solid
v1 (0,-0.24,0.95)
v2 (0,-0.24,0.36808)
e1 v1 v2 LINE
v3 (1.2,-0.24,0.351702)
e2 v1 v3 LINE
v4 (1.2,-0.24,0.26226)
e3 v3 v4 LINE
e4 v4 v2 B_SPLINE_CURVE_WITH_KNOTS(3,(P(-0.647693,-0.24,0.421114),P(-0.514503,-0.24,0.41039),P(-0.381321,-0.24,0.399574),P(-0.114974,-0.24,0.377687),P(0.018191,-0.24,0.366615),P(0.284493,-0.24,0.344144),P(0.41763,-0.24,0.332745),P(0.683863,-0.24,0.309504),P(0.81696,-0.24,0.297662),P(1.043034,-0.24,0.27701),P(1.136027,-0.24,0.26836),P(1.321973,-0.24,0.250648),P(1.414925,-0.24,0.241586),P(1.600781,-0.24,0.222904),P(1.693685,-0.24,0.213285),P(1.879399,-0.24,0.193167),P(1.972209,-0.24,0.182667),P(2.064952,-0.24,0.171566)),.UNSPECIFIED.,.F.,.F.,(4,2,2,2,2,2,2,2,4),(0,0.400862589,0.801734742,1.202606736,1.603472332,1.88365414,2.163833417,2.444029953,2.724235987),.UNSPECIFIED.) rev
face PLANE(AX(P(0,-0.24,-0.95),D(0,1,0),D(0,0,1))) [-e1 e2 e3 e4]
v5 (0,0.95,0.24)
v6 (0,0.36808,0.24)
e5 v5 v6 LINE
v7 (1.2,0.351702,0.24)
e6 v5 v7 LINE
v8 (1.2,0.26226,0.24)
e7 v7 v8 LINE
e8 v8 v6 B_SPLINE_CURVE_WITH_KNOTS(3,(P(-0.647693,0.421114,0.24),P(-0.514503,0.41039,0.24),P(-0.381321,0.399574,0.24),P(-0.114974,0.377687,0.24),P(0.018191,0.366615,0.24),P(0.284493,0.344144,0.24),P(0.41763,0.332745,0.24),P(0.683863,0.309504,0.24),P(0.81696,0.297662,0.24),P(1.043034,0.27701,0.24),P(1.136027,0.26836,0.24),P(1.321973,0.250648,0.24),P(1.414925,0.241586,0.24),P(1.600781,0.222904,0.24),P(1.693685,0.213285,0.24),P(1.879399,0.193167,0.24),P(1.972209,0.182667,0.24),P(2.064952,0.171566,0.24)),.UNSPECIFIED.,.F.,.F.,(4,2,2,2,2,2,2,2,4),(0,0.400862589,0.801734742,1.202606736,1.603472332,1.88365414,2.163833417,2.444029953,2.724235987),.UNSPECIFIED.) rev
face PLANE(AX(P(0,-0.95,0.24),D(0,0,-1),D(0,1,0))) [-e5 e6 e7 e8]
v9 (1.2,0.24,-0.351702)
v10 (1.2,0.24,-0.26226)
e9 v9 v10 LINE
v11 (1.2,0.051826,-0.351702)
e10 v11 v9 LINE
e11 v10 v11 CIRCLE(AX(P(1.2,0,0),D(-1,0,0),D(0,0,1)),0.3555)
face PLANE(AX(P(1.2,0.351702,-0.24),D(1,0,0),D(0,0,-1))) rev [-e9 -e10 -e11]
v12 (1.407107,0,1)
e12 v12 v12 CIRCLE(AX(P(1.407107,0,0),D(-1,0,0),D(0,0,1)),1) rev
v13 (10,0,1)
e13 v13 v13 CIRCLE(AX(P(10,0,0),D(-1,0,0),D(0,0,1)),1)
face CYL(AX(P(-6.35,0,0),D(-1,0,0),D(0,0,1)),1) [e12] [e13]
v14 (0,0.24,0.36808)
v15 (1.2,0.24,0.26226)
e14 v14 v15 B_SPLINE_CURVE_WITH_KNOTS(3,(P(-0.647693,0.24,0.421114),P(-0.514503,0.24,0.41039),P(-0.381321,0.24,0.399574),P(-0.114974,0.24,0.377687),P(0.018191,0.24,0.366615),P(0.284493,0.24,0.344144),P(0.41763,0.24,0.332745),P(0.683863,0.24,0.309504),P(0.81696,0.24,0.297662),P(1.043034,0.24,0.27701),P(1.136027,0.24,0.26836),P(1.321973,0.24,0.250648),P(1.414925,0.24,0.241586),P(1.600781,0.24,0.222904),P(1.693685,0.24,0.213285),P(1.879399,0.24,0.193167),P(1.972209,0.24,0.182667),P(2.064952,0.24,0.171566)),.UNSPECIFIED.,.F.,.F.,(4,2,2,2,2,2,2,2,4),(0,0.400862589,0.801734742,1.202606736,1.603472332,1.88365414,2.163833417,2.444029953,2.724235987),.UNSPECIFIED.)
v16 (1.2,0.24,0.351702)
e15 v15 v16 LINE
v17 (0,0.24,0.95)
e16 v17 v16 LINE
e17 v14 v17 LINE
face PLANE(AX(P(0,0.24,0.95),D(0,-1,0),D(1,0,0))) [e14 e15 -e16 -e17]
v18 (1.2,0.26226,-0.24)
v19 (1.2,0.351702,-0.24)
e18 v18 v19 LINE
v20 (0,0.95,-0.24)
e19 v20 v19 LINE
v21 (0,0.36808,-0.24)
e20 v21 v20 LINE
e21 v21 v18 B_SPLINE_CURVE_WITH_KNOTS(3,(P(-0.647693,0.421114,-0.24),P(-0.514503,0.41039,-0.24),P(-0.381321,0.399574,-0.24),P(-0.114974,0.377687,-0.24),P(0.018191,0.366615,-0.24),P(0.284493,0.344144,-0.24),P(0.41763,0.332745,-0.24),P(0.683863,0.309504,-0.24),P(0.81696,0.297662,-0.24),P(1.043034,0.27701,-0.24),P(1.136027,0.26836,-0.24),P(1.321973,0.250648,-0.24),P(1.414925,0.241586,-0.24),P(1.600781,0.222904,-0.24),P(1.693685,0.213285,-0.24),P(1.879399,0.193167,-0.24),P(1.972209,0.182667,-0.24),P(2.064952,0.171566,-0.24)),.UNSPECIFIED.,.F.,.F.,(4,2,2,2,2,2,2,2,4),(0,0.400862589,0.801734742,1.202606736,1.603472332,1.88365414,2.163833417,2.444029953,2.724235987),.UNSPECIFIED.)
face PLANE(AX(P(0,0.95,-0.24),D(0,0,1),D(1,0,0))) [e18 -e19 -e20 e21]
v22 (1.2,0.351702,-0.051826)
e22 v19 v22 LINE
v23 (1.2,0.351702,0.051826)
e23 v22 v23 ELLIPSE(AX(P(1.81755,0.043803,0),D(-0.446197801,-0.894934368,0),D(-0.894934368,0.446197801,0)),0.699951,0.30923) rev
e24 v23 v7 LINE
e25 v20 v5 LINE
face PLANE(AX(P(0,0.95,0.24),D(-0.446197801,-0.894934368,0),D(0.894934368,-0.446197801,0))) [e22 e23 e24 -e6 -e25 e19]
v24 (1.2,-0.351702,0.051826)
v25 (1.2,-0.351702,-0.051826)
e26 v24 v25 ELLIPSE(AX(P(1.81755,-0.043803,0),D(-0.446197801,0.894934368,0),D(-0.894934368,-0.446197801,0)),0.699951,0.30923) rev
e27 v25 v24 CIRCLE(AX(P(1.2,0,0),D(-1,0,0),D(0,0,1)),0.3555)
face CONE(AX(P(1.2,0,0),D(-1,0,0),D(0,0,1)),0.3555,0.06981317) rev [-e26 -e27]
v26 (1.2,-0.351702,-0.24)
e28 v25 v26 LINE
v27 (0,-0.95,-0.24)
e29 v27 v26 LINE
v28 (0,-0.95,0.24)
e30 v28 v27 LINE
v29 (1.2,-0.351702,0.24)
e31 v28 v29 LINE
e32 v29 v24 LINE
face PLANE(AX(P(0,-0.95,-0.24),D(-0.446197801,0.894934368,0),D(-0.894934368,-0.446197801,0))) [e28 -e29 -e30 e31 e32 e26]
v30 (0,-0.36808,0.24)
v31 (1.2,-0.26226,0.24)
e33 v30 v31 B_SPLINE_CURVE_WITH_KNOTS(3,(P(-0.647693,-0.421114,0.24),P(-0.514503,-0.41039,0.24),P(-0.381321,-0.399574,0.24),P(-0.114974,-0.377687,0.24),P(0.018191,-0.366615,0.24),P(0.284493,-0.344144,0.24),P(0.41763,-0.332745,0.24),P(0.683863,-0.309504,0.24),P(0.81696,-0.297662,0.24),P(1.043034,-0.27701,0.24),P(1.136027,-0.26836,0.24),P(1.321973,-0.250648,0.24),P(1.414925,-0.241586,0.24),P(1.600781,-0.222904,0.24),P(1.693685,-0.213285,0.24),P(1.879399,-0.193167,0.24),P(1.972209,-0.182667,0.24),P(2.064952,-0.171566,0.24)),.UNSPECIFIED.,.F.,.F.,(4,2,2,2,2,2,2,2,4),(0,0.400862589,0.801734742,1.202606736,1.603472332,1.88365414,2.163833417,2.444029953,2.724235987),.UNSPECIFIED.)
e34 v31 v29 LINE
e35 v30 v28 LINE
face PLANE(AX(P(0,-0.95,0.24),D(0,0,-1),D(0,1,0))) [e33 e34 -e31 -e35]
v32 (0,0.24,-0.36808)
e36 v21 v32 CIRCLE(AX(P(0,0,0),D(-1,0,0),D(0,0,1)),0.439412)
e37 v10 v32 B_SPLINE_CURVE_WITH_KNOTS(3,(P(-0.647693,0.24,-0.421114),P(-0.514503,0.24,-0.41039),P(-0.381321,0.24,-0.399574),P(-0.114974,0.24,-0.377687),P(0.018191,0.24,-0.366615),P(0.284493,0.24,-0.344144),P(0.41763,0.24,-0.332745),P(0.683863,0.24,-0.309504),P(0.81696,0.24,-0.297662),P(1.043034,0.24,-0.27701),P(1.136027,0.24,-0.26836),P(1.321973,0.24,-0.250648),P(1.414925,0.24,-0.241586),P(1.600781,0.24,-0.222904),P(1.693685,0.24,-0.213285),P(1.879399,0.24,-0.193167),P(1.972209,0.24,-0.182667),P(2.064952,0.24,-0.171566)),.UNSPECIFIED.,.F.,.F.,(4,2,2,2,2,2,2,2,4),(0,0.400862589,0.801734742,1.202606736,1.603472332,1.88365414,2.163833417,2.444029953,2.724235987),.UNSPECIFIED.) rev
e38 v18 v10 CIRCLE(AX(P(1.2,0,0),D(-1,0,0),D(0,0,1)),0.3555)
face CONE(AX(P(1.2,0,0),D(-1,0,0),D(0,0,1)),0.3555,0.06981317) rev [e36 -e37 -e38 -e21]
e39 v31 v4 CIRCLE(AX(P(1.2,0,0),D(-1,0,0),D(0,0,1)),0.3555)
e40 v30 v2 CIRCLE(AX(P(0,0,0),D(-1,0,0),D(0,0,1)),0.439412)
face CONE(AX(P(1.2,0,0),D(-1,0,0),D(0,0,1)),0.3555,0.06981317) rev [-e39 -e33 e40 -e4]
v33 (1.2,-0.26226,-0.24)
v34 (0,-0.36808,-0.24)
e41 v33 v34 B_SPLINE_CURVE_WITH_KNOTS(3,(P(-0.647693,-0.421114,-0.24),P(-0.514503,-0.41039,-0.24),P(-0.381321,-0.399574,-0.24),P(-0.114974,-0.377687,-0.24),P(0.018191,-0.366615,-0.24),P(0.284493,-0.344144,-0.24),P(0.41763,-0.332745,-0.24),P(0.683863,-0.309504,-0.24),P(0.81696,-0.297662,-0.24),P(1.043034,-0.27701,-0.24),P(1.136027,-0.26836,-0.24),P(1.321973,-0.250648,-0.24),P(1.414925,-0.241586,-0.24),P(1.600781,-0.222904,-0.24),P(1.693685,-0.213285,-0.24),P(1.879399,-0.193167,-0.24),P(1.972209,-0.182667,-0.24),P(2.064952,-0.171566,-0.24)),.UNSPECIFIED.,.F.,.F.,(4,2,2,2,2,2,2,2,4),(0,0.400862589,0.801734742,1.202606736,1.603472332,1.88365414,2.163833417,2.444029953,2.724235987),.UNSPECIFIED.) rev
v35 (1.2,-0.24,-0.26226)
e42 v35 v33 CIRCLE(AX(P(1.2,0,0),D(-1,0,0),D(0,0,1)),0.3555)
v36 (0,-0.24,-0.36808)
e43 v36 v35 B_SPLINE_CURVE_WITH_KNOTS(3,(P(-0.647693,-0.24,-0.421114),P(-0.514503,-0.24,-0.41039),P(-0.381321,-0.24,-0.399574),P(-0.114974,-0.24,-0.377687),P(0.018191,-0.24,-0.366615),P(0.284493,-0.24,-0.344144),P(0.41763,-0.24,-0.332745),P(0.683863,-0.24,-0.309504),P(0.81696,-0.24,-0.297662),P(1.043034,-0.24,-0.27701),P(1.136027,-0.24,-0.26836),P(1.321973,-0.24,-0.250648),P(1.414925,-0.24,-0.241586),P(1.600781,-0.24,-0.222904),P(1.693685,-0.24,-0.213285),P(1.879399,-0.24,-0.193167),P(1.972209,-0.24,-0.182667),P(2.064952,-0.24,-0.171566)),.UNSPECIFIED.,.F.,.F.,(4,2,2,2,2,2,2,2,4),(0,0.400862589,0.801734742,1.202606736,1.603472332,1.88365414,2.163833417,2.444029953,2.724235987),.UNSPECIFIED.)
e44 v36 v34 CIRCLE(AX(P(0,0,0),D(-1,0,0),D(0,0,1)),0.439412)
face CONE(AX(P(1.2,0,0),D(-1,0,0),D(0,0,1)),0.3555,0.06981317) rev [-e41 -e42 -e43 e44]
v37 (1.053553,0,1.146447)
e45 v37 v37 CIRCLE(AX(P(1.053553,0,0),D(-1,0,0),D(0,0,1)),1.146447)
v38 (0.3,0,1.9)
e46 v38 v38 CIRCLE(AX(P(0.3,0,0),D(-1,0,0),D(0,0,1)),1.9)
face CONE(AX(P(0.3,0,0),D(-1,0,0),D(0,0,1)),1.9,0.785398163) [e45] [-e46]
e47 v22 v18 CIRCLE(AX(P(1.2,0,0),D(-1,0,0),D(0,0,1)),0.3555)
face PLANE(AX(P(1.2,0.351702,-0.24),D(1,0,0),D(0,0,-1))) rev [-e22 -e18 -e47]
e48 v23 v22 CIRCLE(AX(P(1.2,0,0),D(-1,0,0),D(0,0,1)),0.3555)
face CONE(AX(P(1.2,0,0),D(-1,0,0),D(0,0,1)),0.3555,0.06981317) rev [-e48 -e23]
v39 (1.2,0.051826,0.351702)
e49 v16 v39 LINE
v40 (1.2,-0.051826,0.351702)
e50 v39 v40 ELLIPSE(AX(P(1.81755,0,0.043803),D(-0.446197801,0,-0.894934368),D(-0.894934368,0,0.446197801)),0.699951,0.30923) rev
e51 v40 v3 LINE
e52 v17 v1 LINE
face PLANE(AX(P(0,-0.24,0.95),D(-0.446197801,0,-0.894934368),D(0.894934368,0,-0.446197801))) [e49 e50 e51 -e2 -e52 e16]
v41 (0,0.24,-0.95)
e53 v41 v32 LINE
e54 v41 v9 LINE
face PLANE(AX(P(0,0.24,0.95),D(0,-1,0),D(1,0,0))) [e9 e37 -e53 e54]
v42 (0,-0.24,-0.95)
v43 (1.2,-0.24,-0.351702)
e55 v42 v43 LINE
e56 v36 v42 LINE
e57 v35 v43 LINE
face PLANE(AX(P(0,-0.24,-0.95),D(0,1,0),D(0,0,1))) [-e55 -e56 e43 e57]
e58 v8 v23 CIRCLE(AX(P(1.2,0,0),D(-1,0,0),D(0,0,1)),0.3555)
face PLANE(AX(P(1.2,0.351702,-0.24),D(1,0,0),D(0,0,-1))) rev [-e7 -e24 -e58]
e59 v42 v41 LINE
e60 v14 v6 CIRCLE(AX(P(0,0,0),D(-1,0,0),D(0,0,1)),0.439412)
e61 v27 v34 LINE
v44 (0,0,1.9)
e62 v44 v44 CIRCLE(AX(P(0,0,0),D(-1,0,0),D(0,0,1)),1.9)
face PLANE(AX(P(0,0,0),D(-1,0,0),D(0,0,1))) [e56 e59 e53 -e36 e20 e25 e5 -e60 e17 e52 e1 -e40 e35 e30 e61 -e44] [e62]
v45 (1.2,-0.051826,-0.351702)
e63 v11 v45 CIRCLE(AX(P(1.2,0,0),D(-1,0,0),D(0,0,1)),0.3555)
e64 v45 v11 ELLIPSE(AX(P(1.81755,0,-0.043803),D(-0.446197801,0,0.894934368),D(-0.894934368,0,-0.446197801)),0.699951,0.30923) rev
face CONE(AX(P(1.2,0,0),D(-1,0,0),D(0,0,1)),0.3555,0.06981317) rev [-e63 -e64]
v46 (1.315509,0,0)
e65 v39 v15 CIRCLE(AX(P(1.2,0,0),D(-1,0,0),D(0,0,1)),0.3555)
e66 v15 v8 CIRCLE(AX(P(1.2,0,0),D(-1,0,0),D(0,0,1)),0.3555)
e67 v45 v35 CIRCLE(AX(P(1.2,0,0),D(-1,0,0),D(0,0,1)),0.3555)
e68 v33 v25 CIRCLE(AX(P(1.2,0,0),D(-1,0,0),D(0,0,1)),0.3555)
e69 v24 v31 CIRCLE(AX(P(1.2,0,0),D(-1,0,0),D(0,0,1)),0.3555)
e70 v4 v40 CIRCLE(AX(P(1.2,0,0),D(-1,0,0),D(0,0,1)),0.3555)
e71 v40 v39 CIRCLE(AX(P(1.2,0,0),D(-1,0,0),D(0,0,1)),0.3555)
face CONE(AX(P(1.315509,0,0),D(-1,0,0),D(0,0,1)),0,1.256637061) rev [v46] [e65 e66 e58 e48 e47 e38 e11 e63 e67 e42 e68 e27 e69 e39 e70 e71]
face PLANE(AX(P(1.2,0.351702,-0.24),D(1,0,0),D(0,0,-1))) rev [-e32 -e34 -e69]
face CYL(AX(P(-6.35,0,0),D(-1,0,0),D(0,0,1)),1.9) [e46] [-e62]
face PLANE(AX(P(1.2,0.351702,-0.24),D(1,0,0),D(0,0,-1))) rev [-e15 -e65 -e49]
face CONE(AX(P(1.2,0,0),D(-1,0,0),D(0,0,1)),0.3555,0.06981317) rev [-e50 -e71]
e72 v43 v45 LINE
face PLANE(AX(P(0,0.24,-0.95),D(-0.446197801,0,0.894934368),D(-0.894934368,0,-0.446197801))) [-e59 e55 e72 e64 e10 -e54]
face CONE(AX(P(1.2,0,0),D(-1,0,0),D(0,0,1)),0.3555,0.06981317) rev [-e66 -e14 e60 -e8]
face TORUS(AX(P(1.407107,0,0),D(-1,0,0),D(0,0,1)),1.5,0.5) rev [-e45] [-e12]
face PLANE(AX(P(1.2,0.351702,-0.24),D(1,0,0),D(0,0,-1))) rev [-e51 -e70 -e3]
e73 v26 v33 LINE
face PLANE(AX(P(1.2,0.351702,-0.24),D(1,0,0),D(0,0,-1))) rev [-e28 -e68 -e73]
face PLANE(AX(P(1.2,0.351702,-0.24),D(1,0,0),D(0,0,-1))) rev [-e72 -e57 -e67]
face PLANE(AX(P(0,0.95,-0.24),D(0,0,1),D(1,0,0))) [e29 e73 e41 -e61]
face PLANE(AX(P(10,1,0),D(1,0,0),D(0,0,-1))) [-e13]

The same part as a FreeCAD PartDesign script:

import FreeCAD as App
import Part
import Sketcher
Q = App.Units.Quantity


def edges_at(feature, points):
    """Names of the edges that pass closest to the given points."""
    edges = feature.Shape.Edges
    near = lambda p: min(range(len(edges)), key=lambda i: edges[i].distToShape(Part.Vertex(*p))[0])
    return sorted({f"Edge{near(p) + 1}" for p in points})


def add_polygon(sketch, points):
    """Adds a closed chain of lines whose ends are joined by coincident constraints."""
    first, n = sketch.GeometryCount, len(points)
    for a, b in zip(points, points[1:] + points[:1]):
        sketch.addGeometry(Part.LineSegment(App.Vector(*a, 0), App.Vector(*b, 0)), False)
    for i in range(n):
        sketch.addConstraint(Sketcher.Constraint("Coincident", first + i, 2, first + (i + 1) % n, 1))

doc = App.newDocument("Part")
body = doc.addObject("PartDesign::Body", "Body")

# Sketch on XY plane
sketch1 = body.newObject("Sketcher::SketchObject", "Sketch")
sketch1.AttachmentSupport = (doc.getObject("XY_Plane"), [""])
sketch1.MapMode = "FlatFace"
add_polygon(sketch1, [(0, 1.9), (0, 0), (10, 0), (10, 1), (1.2, 1), (0.3, 1.9)])  # lines 0-5
sketch1.addConstraint([
    Sketcher.Constraint("Vertical", 0),
    Sketcher.Constraint("Horizontal", 1),
    Sketcher.Constraint("Vertical", 2),
    Sketcher.Constraint("Horizontal", 3),
    Sketcher.Constraint("Horizontal", 5),
    Sketcher.Constraint("Coincident", 0, 2, -1, 1),
    Sketcher.Constraint("DistanceX", 1, 1, 1, 2, Q("10 mm")),
    Sketcher.Constraint("DistanceY", 2, 1, 2, 2, Q("1 mm")),
    Sketcher.Constraint("Angle", 4, Q("135 deg")),
    Sketcher.Constraint("DistanceX", 3, 2, 3, 1, Q("8.8 mm")),
    Sketcher.Constraint("DistanceX", 5, 2, 5, 1, Q("0.3 mm")),
])
revolution = body.newObject("PartDesign::Revolution", "Revolution")
revolution.Profile = sketch1
revolution.ReferenceAxis = (sketch1, ["H_Axis"])
revolution.Angle = 360
doc.recompute()

fillet = body.newObject("PartDesign::Fillet", "Fillet")
fillet.Base = (revolution, edges_at(revolution, [(1.2, 0, -1)]))
fillet.Radius = 0.5

# Sketch on YZ plane
sketch2 = body.newObject("Sketcher::SketchObject", "Sketch001")
sketch2.AttachmentSupport = (doc.getObject("YZ_Plane"), [""])
sketch2.MapMode = "FlatFace"
add_polygon(sketch2, [(0.95, 0.24), (0.95, -0.24), (-0.95, -0.24), (-0.95, 0.24)])  # lines 0-3
sketch2.addConstraint([
    Sketcher.Constraint("Vertical", 0),
    Sketcher.Constraint("Horizontal", 1),
    Sketcher.Constraint("Vertical", 2),
    Sketcher.Constraint("Horizontal", 3),
    Sketcher.Constraint("Symmetric", 0, 2, 2, 2, -1, 1),
    Sketcher.Constraint("DistanceX", 1, 2, 1, 1, Q("1.9 mm")),
    Sketcher.Constraint("DistanceY", 0, 2, 0, 1, Q("0.48 mm")),
])

# Sketch on YZ plane
sketch3 = body.newObject("Sketcher::SketchObject", "Sketch002")
sketch3.AttachmentSupport = (doc.getObject("YZ_Plane"), [""])
sketch3.MapMode = "FlatFace"
sketch3.AttachmentOffset = App.Placement(App.Vector(0, 0, 1.2), App.Rotation())
add_polygon(sketch3, [(0.35, 0.24), (0.35, -0.24), (-0.35, -0.24), (-0.35, 0.24)])  # lines 0-3
sketch3.addConstraint([
    Sketcher.Constraint("Vertical", 0),
    Sketcher.Constraint("Horizontal", 1),
    Sketcher.Constraint("Vertical", 2),
    Sketcher.Constraint("Horizontal", 3),
    Sketcher.Constraint("Symmetric", 0, 2, 2, 2, -1, 1),
    Sketcher.Constraint("DistanceY", 0, 2, 0, 1, Q("0.48 mm")),
    Sketcher.Constraint("DistanceX", 1, 2, 1, 1, Q("0.703404 mm")),
])

subtractiveloft = body.newObject("PartDesign::SubtractiveLoft", "SubtractiveLoft")
subtractiveloft.Profile = sketch2
subtractiveloft.Sections = [sketch3]
doc.recompute()

polarpattern = body.newObject("PartDesign::PolarPattern", "PolarPattern")
polarpattern.Originals = [subtractiveloft]
polarpattern.Axis = (doc.getObject("X_Axis"), [""])
polarpattern.Angle = 90
polarpattern.Occurrences = 2
body.Tip = polarpattern

# Sketch on XY plane
sketch4 = body.newObject("Sketcher::SketchObject", "Sketch003")
sketch4.AttachmentSupport = (doc.getObject("XY_Plane"), [""])
sketch4.MapMode = "FlatFace"
add_polygon(sketch4, [(0, 0.44), (0, 0), (1.32, 0), (1.2, 0.36)])  # lines 0-3
sketch4.addConstraint([
    Sketcher.Constraint("Vertical", 0),
    Sketcher.Constraint("Horizontal", 1),
    Sketcher.Constraint("Coincident", 0, 2, -1, 1),
    Sketcher.Constraint("Angle", 2, Q("108 deg")),
    Sketcher.Constraint("Angle", 3, Q("176 deg")),
    Sketcher.Constraint("DistanceX", -1, 1, 2, 2, Q("1.2 mm")),
    Sketcher.Constraint("DistanceX", 1, 1, 1, 2, Q("1.315509 mm")),
])
groove = body.newObject("PartDesign::Groove", "Groove")
groove.Profile = sketch4
groove.ReferenceAxis = (sketch4, ["H_Axis"])
groove.Angle = 360

doc.recompute()
